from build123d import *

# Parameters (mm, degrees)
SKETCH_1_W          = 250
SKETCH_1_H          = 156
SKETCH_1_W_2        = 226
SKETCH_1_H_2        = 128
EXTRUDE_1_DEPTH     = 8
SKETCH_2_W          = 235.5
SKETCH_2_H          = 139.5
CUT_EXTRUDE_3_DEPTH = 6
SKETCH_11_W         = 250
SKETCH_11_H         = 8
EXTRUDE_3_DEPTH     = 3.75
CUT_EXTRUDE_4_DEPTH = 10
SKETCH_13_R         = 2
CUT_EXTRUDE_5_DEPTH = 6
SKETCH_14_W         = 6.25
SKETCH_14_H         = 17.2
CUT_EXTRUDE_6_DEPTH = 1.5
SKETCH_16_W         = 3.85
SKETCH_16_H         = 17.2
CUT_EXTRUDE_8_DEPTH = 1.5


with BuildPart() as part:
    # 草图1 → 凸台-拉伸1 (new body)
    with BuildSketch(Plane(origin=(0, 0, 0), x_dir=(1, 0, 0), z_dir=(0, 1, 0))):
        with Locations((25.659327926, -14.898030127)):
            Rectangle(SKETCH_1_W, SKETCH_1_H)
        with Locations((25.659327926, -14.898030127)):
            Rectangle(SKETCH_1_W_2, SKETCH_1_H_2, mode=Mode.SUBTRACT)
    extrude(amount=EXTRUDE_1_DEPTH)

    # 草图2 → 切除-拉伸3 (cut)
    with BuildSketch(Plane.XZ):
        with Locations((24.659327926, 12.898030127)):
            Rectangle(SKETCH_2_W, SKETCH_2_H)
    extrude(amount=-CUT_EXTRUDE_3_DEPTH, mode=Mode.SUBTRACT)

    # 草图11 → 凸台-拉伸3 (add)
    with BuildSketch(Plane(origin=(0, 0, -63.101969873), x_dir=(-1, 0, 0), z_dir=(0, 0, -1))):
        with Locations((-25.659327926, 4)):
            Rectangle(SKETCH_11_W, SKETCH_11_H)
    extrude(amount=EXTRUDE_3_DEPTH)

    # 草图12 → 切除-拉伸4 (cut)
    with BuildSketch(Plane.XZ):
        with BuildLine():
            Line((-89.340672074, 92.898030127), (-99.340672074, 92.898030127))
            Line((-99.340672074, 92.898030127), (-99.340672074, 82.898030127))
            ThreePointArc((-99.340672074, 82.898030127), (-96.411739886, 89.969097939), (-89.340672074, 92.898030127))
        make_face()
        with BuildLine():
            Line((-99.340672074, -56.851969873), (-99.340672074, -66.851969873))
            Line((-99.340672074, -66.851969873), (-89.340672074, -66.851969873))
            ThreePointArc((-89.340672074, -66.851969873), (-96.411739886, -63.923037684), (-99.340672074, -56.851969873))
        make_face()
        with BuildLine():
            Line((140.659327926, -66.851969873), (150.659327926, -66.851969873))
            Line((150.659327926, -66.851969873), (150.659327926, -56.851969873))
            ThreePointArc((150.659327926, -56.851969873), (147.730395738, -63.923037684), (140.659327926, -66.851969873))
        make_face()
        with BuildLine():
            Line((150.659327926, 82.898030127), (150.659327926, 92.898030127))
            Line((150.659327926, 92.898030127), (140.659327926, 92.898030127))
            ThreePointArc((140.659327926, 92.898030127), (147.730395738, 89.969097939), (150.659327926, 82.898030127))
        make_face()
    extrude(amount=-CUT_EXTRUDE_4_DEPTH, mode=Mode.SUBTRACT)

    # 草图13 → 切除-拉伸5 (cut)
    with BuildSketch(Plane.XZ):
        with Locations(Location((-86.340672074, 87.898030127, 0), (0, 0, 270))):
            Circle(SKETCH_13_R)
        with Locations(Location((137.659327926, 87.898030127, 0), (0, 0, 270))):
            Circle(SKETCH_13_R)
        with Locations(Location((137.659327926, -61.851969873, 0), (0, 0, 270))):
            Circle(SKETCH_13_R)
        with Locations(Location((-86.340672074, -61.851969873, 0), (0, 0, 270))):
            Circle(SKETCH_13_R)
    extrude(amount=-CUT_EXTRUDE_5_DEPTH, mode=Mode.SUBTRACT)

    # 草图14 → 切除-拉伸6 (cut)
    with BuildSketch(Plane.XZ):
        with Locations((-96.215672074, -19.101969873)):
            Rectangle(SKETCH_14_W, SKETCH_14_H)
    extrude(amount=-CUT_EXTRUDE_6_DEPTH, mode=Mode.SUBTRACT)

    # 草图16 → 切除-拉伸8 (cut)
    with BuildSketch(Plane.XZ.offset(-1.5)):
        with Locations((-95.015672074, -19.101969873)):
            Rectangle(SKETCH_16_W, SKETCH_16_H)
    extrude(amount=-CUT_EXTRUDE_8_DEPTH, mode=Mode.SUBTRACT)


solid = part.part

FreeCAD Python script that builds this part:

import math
import FreeCAD as App
import Part
import Sketcher
Q = App.Units.Quantity


def add_polygon(sketch, points):
    """Adds a closed chain of lines whose ends are joined by coincident constraints."""
    first, n = sketch.GeometryCount, len(points)
    for a, b in zip(points, points[1:] + points[:1]):
        sketch.addGeometry(Part.LineSegment(App.Vector(*a, 0), App.Vector(*b, 0)), False)
    for i in range(n):
        sketch.addConstraint(Sketcher.Constraint("Coincident", first + i, 2, first + (i + 1) % n, 1))

doc = App.newDocument("Part")
body = doc.addObject("PartDesign::Body", "Body")

sketch1 = body.newObject("Sketcher::SketchObject", "Sketch")
sketch1.AttachmentSupport = (doc.getObject("XZ_Plane"), [""])
sketch1.MapMode = "FlatFace"
add_polygon(sketch1, [(-99, -63), (-99, 93), (151, 93), (151, -63)])
add_polygon(sketch1, [(139, 79), (-87, 79), (-87, -49), (139, -49)])
sketch1.addConstraint([
    Sketcher.Constraint("Vertical", 0),
    Sketcher.Constraint("Horizontal", 1),
    Sketcher.Constraint("Vertical", 2),
    Sketcher.Constraint("Horizontal", 3),
    Sketcher.Constraint("Horizontal", 4),
    Sketcher.Constraint("Vertical", 5),
    Sketcher.Constraint("Horizontal", 6),
    Sketcher.Constraint("Vertical", 7),
    Sketcher.Constraint("DistanceX", 1, 1, 1, 2, Q("250 mm")),
    Sketcher.Constraint("DistanceX", 4, 2, 4, 1, Q("226 mm")),
    Sketcher.Constraint("DistanceY", 0, 1, 0, 2, Q("156 mm")),
    Sketcher.Constraint("DistanceY", 5, 2, 5, 1, Q("128 mm")),
    Sketcher.Constraint("DistanceX", 0, 2, 4, 2, Q("12 mm")),
    Sketcher.Constraint("DistanceY", 4, 2, 0, 2, Q("14 mm")),
    Sketcher.Constraint("DistanceY", -1, 1, 0, 2, Q("92.89803 mm")),
    Sketcher.Constraint("DistanceX", 0, 2, -1, 1, Q("99.340672 mm")),
])
pad1 = body.newObject("PartDesign::Pad", "Pad")
pad1.Profile = sketch1
pad1.Length = 8
pad1.Reversed = True

sketch2 = body.newObject("Sketcher::SketchObject", "Sketch001")
sketch2.AttachmentSupport = (doc.getObject("XZ_Plane"), [""])
sketch2.MapMode = "FlatFace"
add_polygon(sketch2, [(-93, 83), (-93, -57), (142, -57), (142, 83)])
sketch2.addConstraint([
    Sketcher.Constraint("Vertical", 0),
    Sketcher.Constraint("Horizontal", 1),
    Sketcher.Constraint("Vertical", 2),
    Sketcher.Constraint("Horizontal", 3),
    Sketcher.Constraint("DistanceX", 1, 1, 1, 2, Q("235.5 mm")),
    Sketcher.Constraint("DistanceY", 0, 2, 0, 1, Q("139.5 mm")),
    Sketcher.Constraint("DistanceY", 0, 2, -1, 1, Q("56.85197 mm")),
    Sketcher.Constraint("DistanceX", 0, 2, -1, 1, Q("93.090672 mm")),
])
pocket1 = body.newObject("PartDesign::Pocket", "Pocket")
pocket1.Profile = sketch2
pocket1.Length = 6

sketch3 = body.newObject("Sketcher::SketchObject", "Sketch002")
sketch3.AttachmentSupport = (doc.getObject("XY_Plane"), [""])
sketch3.MapMode = "FlatFace"
sketch3.AttachmentOffset = App.Placement(App.Vector(0, 0, -63.10197), App.Rotation())
add_polygon(sketch3, [(151, 8), (151, 0), (-99, 0), (-99, 8)])
sketch3.addConstraint([
    Sketcher.Constraint("Vertical", 0),
    Sketcher.Constraint("Horizontal", 1),
    Sketcher.Constraint("Vertical", 2),
    Sketcher.Constraint("Horizontal", 3),
    Sketcher.Constraint("PointOnObject", 0, 2, -1),
    Sketcher.Constraint("DistanceX", 1, 2, 1, 1, Q("250 mm")),
    Sketcher.Constraint("DistanceY", 0, 2, 0, 1, Q("8 mm")),
    Sketcher.Constraint("DistanceX", -1, 1, 0, 2, Q("150.659328 mm")),
])
pad2 = body.newObject("PartDesign::Pad", "Pad001")
pad2.Profile = sketch3
pad2.Length = 3.75
pad2.Reversed = True

sketch4 = body.newObject("Sketcher::SketchObject", "Sketch003")
sketch4.AttachmentSupport = (doc.getObject("XZ_Plane"), [""])
sketch4.MapMode = "FlatFace"
sketch4.addGeometry([
    Part.LineSegment(App.Vector(-89, 93, 0), App.Vector(-99, 93, 0)),
    Part.LineSegment(App.Vector(-99, 93, 0), App.Vector(-99, 83, 0)),
    Part.ArcOfCircle(Part.Circle(App.Vector(-89, 83, 0), App.Vector(0, 0, 1), 10), math.radians(90), math.radians(180)),
    Part.LineSegment(App.Vector(-99, -57, 0), App.Vector(-99, -67, 0)),
    Part.LineSegment(App.Vector(-99, -67, 0), App.Vector(-89, -67, 0)),
    Part.ArcOfCircle(Part.Circle(App.Vector(-89, -57, 0), App.Vector(0, 0, 1), 10), math.radians(-180), math.radians(-90)),
    Part.LineSegment(App.Vector(141, -67, 0), App.Vector(151, -67, 0)),
    Part.LineSegment(App.Vector(151, -67, 0), App.Vector(151, -57, 0)),
    Part.ArcOfCircle(Part.Circle(App.Vector(141, -57, 0), App.Vector(0, 0, 1), 10), math.radians(-90), math.radians(0)),
    Part.LineSegment(App.Vector(151, 83, 0), App.Vector(151, 93, 0)),
    Part.LineSegment(App.Vector(151, 93, 0), App.Vector(141, 93, 0)),
    Part.ArcOfCircle(Part.Circle(App.Vector(141, 83, 0), App.Vector(0, 0, 1), 10), math.radians(0), math.radians(90)),
], False)
sketch4.addConstraint([
    Sketcher.Constraint("Coincident", 0, 2, 1, 1),
    Sketcher.Constraint("Tangent", 1, 2, 2, 2),
    Sketcher.Constraint("Tangent", 2, 1, 0, 1),
    Sketcher.Constraint("Coincident", 3, 2, 4, 1),
    Sketcher.Constraint("Tangent", 4, 2, 5, 2),
    Sketcher.Constraint("Tangent", 5, 1, 3, 1),
    Sketcher.Constraint("Coincident", 6, 2, 7, 1),
    Sketcher.Constraint("Tangent", 7, 2, 8, 2),
    Sketcher.Constraint("Tangent", 8, 1, 6, 1),
    Sketcher.Constraint("Coincident", 9, 2, 10, 1),
    Sketcher.Constraint("Tangent", 10, 2, 11, 2),
    Sketcher.Constraint("Tangent", 11, 1, 9, 1),
    Sketcher.Constraint("Horizontal", 0),
    Sketcher.Constraint("Vertical", 1),
    Sketcher.Constraint("Vertical", 3),
    Sketcher.Constraint("Horizontal", 4),
    Sketcher.Constraint("Horizontal", 6),
    Sketcher.Constraint("Vertical", 7),
    Sketcher.Constraint("Vertical", 9),
    Sketcher.Constraint("Horizontal", 10),
    Sketcher.Constraint("Equal", 2, 5),
    Sketcher.Constraint("Equal", 5, 8),
    Sketcher.Constraint("Equal", 8, 11),
    Sketcher.Constraint("Horizontal", 5, 3, 8, 3),
    Sketcher.Constraint("Horizontal", 2, 3, 11, 3),
    Sketcher.Constraint("Vertical", 2, 3, 5, 3),
    Sketcher.Constraint("Vertical", 8, 3, 11, 3),
    Sketcher.Constraint("Radius", 2, Q("10 mm")),
    Sketcher.Constraint("DistanceX", 5, 3, 8, 3, Q("230 mm")),
    Sketcher.Constraint("DistanceY", 5, 3, 2, 3, Q("139.75 mm")),
    Sketcher.Constraint("DistanceY", -1, 1, 2, 3, Q("82.89803 mm")),
    Sketcher.Constraint("DistanceX", 2, 3, -1, 1, Q("89.340672 mm")),
])
pocket2 = body.newObject("PartDesign::Pocket", "Pocket001")
pocket2.Profile = sketch4
pocket2.Length = 10

sketch5 = body.newObject("Sketcher::SketchObject", "Sketch004")
sketch5.AttachmentSupport = (doc.getObject("XZ_Plane"), [""])
sketch5.MapMode = "FlatFace"
sketch5.addGeometry([
    Part.Circle(App.Vector(-86.3, 87.9, 0), App.Vector(0, 0, 1), 2),
    Part.Circle(App.Vector(137.7, 87.9, 0), App.Vector(0, 0, 1), 2),
    Part.Circle(App.Vector(137.7, -61.9, 0), App.Vector(0, 0, 1), 2),
    Part.Circle(App.Vector(-86.3, -61.9, 0), App.Vector(0, 0, 1), 2),
], False)
sketch5.addConstraint([
    Sketcher.Constraint("Equal", 0, 1),
    Sketcher.Constraint("Equal", 1, 2),
    Sketcher.Constraint("Equal", 2, 3),
    Sketcher.Constraint("Horizontal", 0, 3, 1, 3),
    Sketcher.Constraint("Horizontal", 2, 3, 3, 3),
    Sketcher.Constraint("Vertical", 1, 3, 2, 3),
    Sketcher.Constraint("Vertical", 0, 3, 3, 3),
    Sketcher.Constraint("Diameter", 0, Q("4 mm")),
    Sketcher.Constraint("DistanceX", 0, 3, 1, 3, Q("224 mm")),
    Sketcher.Constraint("DistanceY", 2, 3, 1, 3, Q("149.75 mm")),
    Sketcher.Constraint("DistanceY", -1, 1, 0, 3, Q("87.89803 mm")),
    Sketcher.Constraint("DistanceX", 0, 3, -1, 1, Q("86.340672 mm")),
])
pocket3 = body.newObject("PartDesign::Pocket", "Pocket002")
pocket3.Profile = sketch5
pocket3.Length = 6

sketch6 = body.newObject("Sketcher::SketchObject", "Sketch005")
sketch6.AttachmentSupport = (doc.getObject("XZ_Plane"), [""])
sketch6.MapMode = "FlatFace"
add_polygon(sketch6, [(-99, -11), (-99, -28), (-93, -28), (-93, -11)])
sketch6.addConstraint([
    Sketcher.Constraint("Vertical", 0),
    Sketcher.Constraint("Horizontal", 1),
    Sketcher.Constraint("Vertical", 2),
    Sketcher.Constraint("Horizontal", 3),
    Sketcher.Constraint("DistanceY", 0, 2, 0, 1, Q("17.2 mm")),
    Sketcher.Constraint("DistanceX", 1, 1, 1, 2, Q("6.25 mm")),
    Sketcher.Constraint("DistanceY", 0, 2, -1, 1, Q("27.70197 mm")),
    Sketcher.Constraint("DistanceX", 0, 2, -1, 1, Q("99.340672 mm")),
])
pocket4 = body.newObject("PartDesign::Pocket", "Pocket003")
pocket4.Profile = sketch6
pocket4.Length = 1.5

sketch7 = body.newObject("Sketcher::SketchObject", "Sketch006")
sketch7.AttachmentSupport = (doc.getObject("XZ_Plane"), [""])
sketch7.MapMode = "FlatFace"
sketch7.AttachmentOffset = App.Placement(App.Vector(0, 0, -1.5), App.Rotation())
add_polygon(sketch7, [(-96.9, -10.5), (-96.9, -27.7), (-93.1, -27.7), (-93.1, -10.5)])
sketch7.addConstraint([
    Sketcher.Constraint("Vertical", 0),
    Sketcher.Constraint("Horizontal", 1),
    Sketcher.Constraint("Vertical", 2),
    Sketcher.Constraint("Horizontal", 3),
    Sketcher.Constraint("DistanceY", 0, 2, 0, 1, Q("17.2 mm")),
    Sketcher.Constraint("DistanceX", 1, 1, 1, 2, Q("3.85 mm")),
    Sketcher.Constraint("DistanceY", 0, 2, -1, 1, Q("27.70197 mm")),
    Sketcher.Constraint("DistanceX", 0, 2, -1, 1, Q("96.940672 mm")),
])
pocket5 = body.newObject("PartDesign::Pocket", "Pocket004")
pocket5.Profile = sketch7
pocket5.Length = 1.5

doc.recompute()
